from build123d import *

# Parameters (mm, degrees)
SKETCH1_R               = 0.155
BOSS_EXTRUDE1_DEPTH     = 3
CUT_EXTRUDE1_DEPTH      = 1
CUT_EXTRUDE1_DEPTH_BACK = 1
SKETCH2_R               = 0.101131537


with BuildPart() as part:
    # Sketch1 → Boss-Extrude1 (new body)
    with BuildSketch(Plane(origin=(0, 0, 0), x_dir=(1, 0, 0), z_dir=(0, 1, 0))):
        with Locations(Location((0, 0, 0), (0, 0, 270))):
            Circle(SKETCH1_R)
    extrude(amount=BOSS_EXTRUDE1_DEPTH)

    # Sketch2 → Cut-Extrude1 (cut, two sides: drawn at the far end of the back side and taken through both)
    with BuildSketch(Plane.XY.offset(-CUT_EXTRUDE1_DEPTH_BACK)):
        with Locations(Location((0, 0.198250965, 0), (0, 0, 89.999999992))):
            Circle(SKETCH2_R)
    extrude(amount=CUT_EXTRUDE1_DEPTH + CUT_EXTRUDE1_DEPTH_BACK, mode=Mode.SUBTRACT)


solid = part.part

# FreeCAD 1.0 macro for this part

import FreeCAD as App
import Part
import Sketcher
from FreeCAD import Vector
Q = App.Units.Quantity

doc = App.newDocument("Part")
body = doc.addObject("PartDesign::Body", "Body")

# Sketch on XZ plane
sketch1 = body.newObject("Sketcher::SketchObject", "Sketch")
sketch1.AttachmentSupport = (doc.getObject("XZ_Plane"), [""])
sketch1.MapMode = "FlatFace"
sketch1.addGeometry(Part.Circle(Vector(0, 0, 0), Vector(0, 0, 1), 0.15), False)
sketch1.addConstraint(Sketcher.Constraint("Coincident", 0, 3, -1, 1))
sketch1.addConstraint(Sketcher.Constraint("Diameter", 0, Q("0.31 mm")))
pad1 = body.newObject("PartDesign::Pad", "Pad")
pad1.Profile = sketch1
pad1.Length = 3
pad1.Reversed = True

# Sketch on XY plane
sketch2 = body.newObject("Sketcher::SketchObject", "Sketch001")
sketch2.AttachmentSupport = (doc.getObject("XY_Plane"), [""])
sketch2.MapMode = "FlatFace"
sketch2.addGeometry(Part.Circle(Vector(0, 0.2, 0), Vector(0, 0, 1), 0.1), False)
sketch2.addConstraint(Sketcher.Constraint("PointOnObject", 0, 3, -2))
sketch2.addConstraint(Sketcher.Constraint("Diameter", 0, Q("0.202263 mm")))
sketch2.addConstraint(Sketcher.Constraint("DistanceY", -1, 1, 0, 3, Q("0.198251 mm")))
pocket1 = body.newObject("PartDesign::Pocket", "Pocket")
pocket1.Profile = sketch2
pocket1.Type = "ThroughAll"
pocket1.Midplane = True

doc.recompute()
